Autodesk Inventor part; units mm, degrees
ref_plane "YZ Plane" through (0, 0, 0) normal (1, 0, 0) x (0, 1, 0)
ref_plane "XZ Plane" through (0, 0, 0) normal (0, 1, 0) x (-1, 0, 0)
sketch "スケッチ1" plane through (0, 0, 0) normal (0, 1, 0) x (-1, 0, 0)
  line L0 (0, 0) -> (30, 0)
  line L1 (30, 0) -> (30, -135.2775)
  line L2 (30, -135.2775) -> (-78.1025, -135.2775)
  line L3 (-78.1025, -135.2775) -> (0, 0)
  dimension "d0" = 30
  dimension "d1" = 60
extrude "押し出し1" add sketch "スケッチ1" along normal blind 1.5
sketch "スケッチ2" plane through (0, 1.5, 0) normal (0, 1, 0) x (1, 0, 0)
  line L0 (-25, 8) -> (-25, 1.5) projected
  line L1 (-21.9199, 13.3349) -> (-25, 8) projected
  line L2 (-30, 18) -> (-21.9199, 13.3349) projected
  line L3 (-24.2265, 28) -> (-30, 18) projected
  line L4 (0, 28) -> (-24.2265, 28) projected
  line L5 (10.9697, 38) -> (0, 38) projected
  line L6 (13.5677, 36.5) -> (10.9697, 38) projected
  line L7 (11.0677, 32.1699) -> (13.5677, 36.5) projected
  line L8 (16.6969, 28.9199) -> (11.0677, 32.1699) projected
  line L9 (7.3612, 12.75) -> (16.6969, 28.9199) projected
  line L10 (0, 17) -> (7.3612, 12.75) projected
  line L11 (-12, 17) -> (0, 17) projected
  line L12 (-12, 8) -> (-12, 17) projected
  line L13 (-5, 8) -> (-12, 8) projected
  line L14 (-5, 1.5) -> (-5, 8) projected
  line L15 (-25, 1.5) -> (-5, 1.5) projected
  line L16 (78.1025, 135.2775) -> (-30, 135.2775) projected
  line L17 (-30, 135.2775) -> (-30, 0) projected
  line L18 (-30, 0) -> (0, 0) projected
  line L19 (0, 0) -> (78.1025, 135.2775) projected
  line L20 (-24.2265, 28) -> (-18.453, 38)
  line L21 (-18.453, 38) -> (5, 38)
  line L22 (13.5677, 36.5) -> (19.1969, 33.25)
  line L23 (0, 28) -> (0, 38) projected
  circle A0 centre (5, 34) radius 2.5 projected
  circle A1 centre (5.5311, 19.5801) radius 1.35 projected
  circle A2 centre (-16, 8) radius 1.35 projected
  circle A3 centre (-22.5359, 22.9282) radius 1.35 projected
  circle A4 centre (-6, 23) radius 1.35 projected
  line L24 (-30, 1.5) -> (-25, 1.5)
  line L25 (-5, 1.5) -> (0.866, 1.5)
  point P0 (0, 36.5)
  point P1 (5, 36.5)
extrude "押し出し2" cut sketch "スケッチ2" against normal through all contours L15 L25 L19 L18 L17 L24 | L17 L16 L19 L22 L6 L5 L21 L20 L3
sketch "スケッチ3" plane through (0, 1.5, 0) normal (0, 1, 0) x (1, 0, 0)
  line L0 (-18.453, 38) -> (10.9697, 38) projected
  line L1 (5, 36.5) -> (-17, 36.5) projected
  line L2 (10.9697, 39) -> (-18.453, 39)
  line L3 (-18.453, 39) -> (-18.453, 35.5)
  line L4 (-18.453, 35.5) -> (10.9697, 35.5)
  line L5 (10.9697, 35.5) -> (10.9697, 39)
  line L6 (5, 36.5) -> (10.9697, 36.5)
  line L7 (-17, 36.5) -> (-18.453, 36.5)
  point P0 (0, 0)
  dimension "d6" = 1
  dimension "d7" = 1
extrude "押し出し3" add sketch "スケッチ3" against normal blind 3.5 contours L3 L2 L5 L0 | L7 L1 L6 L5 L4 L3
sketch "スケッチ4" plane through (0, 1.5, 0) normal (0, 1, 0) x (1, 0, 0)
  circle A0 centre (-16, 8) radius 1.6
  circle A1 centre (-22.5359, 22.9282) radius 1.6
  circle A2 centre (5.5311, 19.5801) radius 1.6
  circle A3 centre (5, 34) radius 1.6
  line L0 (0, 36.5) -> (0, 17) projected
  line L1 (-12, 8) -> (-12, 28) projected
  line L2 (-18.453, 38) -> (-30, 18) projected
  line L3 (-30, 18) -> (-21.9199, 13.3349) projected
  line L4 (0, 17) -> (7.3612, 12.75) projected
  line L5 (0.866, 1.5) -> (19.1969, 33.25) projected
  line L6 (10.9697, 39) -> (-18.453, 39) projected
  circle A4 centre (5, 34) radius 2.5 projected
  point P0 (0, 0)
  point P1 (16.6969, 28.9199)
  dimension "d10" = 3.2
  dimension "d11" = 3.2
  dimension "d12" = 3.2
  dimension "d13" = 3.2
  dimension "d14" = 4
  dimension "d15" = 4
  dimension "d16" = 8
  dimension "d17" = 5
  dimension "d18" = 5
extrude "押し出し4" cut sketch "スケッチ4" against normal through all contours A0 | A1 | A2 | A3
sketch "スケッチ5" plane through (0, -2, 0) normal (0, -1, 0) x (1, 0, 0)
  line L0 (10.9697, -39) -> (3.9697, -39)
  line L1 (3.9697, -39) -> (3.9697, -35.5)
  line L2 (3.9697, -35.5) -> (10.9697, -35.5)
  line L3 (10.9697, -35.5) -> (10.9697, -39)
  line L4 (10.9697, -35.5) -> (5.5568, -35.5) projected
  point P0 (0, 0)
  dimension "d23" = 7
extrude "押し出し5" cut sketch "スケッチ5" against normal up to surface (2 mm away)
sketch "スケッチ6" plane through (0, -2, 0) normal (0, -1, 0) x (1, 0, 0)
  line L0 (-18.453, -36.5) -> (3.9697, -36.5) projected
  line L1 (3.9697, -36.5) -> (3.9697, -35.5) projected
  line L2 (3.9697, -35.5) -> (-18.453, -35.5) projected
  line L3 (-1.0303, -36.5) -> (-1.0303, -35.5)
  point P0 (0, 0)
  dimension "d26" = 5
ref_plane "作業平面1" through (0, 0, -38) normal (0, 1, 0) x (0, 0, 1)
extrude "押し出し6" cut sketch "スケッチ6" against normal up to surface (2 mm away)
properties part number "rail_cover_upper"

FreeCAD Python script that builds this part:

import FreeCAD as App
import Part
import Sketcher
Q = App.Units.Quantity


def add_polygon(sketch, points):
    """Adds a closed chain of lines whose ends are joined by coincident constraints."""
    first, n = sketch.GeometryCount, len(points)
    for a, b in zip(points, points[1:] + points[:1]):
        sketch.addGeometry(Part.LineSegment(App.Vector(*a, 0), App.Vector(*b, 0)), False)
    for i in range(n):
        sketch.addConstraint(Sketcher.Constraint("Coincident", first + i, 2, first + (i + 1) % n, 1))

doc = App.newDocument("Part")
body = doc.addObject("PartDesign::Body", "Body")

# Sketch on XZ plane
sketch1 = body.newObject("Sketcher::SketchObject", "Sketch")
sketch1.AttachmentSupport = (doc.getObject("XZ_Plane"), [""])
sketch1.MapMode = "FlatFace"
add_polygon(sketch1, [(-30, 0), (0, 0), (78, -135), (-30, -135)])  # lines 0-3
sketch1.addConstraint([
    Sketcher.Constraint("Horizontal", 0),
    Sketcher.Constraint("Horizontal", 2),
    Sketcher.Constraint("Vertical", 3),
    Sketcher.Constraint("Coincident", 0, 2, -1, 1),
    Sketcher.Constraint("DistanceX", 0, 1, 0, 2, Q("30 mm")),
    Sketcher.Constraint("Angle", 1, Q("-60 deg")),
    Sketcher.Constraint("Distance", 1, Q("156.205 mm")),
])
pad1 = body.newObject("PartDesign::Pad", "Pad")
pad1.Profile = sketch1
pad1.Length = 1.5
pad1.Reversed = True

# Sketch on XZ plane
sketch2 = body.newObject("Sketcher::SketchObject", "Sketch001")
sketch2.AttachmentSupport = (doc.getObject("XZ_Plane"), [""])
sketch2.MapMode = "FlatFace"
sketch2.AttachmentOffset = App.Placement(App.Vector(0, 0, -1.5), App.Rotation())
add_polygon(sketch2, [(0.9, -1.5), (-30, -1.5), (-30, 0), (0, 0)])  # lines 0-3
add_polygon(sketch2, [(-30, -135.3), (-30, -18), (-18.5, -38), (11, -38), (13.6, -36.5), (19.2, -33.3), (78.1, -135.3)])  # lines 4-10
sketch2.addConstraint([
    Sketcher.Constraint("Horizontal", 0),
    Sketcher.Constraint("Vertical", 1),
    Sketcher.Constraint("Horizontal", 2),
    Sketcher.Constraint("Vertical", 4),
    Sketcher.Constraint("Horizontal", 6),
    Sketcher.Constraint("Horizontal", 10),
    Sketcher.Constraint("Coincident", 2, 2, -1, 1),
    Sketcher.Constraint("Parallel", 3, 5),
    Sketcher.Constraint("Perpendicular", 5, 7),
    Sketcher.Constraint("Parallel", 7, 8),
    Sketcher.Constraint("Perpendicular", 8, 9),
    Sketcher.Constraint("Vertical", 1, 2, 4, 2),
    Sketcher.Constraint("DistanceX", 2, 1, 2, 2, Q("30 mm")),
    Sketcher.Constraint("Angle", 3, Q("-60 deg")),
    Sketcher.Constraint("Distance", 7, Q("3 mm")),
    Sketcher.Constraint("DistanceY", 1, 1, 1, 2, Q("1.5 mm")),
    Sketcher.Constraint("DistanceY", 4, 2, -1, 1, Q("18 mm")),
    Sketcher.Constraint("DistanceY", 5, 2, -1, 1, Q("38 mm")),
    Sketcher.Constraint("Distance", 8, Q("6.5 mm")),
    Sketcher.Constraint("DistanceX", 5, 2, 8, 2, Q("37.65 mm")),
    Sketcher.Constraint("DistanceX", 10, 2, 10, 1, Q("108.1025 mm")),
])
pocket1 = body.newObject("PartDesign::Pocket", "Pocket")
pocket1.Profile = sketch2
pocket1.Type = "ThroughAll"
pocket1.Reversed = True

# Sketch on XZ plane
sketch3 = body.newObject("Sketcher::SketchObject", "Sketch002")
sketch3.AttachmentSupport = (doc.getObject("XZ_Plane"), [""])
sketch3.MapMode = "FlatFace"
sketch3.AttachmentOffset = App.Placement(App.Vector(0, 0, -1.5), App.Rotation())
add_polygon(sketch3, [(-18.5, -39), (-18.5, -38), (11, -38), (11, -39)])  # lines 0-3
add_polygon(sketch3, [(11, -36.5), (-18.5, -36.5), (-18.5, -35.5), (11, -35.5)])  # lines 4-7
sketch3.addConstraint([
    Sketcher.Constraint("Vertical", 0),
    Sketcher.Constraint("Horizontal", 1),
    Sketcher.Constraint("Vertical", 2),
    Sketcher.Constraint("Horizontal", 3),
    Sketcher.Constraint("Horizontal", 4),
    Sketcher.Constraint("Vertical", 5),
    Sketcher.Constraint("Horizontal", 6),
    Sketcher.Constraint("Vertical", 7),
    Sketcher.Constraint("Vertical", 3, 2, 4, 2),
    Sketcher.Constraint("Vertical", 2, 2, 6, 2),
    Sketcher.Constraint("Equal", 2, 5),
    Sketcher.Constraint("DistanceY", 0, 1, 0, 2, Q("1 mm")),
    Sketcher.Constraint("DistanceY", 0, 2, -1, 1, Q("38 mm")),
    Sketcher.Constraint("DistanceY", 4, 2, -1, 1, Q("36.5 mm")),
    Sketcher.Constraint("DistanceX", 1, 1, 1, 2, Q("29.4227 mm")),
    Sketcher.Constraint("DistanceX", 0, 2, -1, 1, Q("18.453 mm")),
])
pad2 = body.newObject("PartDesign::Pad", "Pad001")
pad2.Profile = sketch3
pad2.Length = 3.5

# Sketch on XZ plane
sketch4 = body.newObject("Sketcher::SketchObject", "Sketch003")
sketch4.AttachmentSupport = (doc.getObject("XZ_Plane"), [""])
sketch4.MapMode = "FlatFace"
sketch4.AttachmentOffset = App.Placement(App.Vector(0, 0, -1.5), App.Rotation())
sketch4.addGeometry([
    Part.Circle(App.Vector(-16, -8, 0), App.Vector(0, 0, 1), 1.6),
    Part.Circle(App.Vector(-22.5, -22.9, 0), App.Vector(0, 0, 1), 1.6),
    Part.Circle(App.Vector(5.5, -19.6, 0), App.Vector(0, 0, 1), 1.6),
    Part.Circle(App.Vector(5, -34, 0), App.Vector(0, 0, 1), 1.6),
], False)
sketch4.addConstraint([
    Sketcher.Constraint("Equal", 0, 1),
    Sketcher.Constraint("Equal", 1, 2),
    Sketcher.Constraint("Equal", 2, 3),
    Sketcher.Constraint("Diameter", 0, Q("3.2 mm")),
    Sketcher.Constraint("DistanceY", 0, 3, -1, 1, Q("8 mm")),
    Sketcher.Constraint("DistanceX", -1, 1, 3, 3, Q("5 mm")),
    Sketcher.Constraint("DistanceX", 0, 3, -1, 1, Q("16 mm")),
    Sketcher.Constraint("DistanceY", 3, 3, -1, 1, Q("34 mm")),
    Sketcher.Constraint("DistanceY", 2, 3, -1, 1, Q("19.58 mm")),
    Sketcher.Constraint("DistanceX", 1, 3, -1, 1, Q("22.536 mm")),
    Sketcher.Constraint("DistanceX", -1, 1, 2, 3, Q("5.531 mm")),
    Sketcher.Constraint("DistanceY", 1, 3, 2, 3, Q("3.348 mm")),
])
pocket2 = body.newObject("PartDesign::Pocket", "Pocket001")
pocket2.Profile = sketch4
pocket2.Type = "ThroughAll"
pocket2.Reversed = True

# Sketch on XZ plane
sketch5 = body.newObject("Sketcher::SketchObject", "Sketch004")
sketch5.AttachmentSupport = (doc.getObject("XZ_Plane"), [""])
sketch5.MapMode = "FlatFace"
sketch5.AttachmentOffset = App.Placement(App.Vector(0, 0, 2), App.Rotation())
add_polygon(sketch5, [(4, -39), (11, -39), (11, -35.5), (4, -35.5)])  # lines 0-3
sketch5.addConstraint([
    Sketcher.Constraint("Horizontal", 0),
    Sketcher.Constraint("Vertical", 1),
    Sketcher.Constraint("Horizontal", 2),
    Sketcher.Constraint("Vertical", 3),
    Sketcher.Constraint("DistanceX", 0, 1, 0, 2, Q("7 mm")),
    Sketcher.Constraint("DistanceY", 1, 1, 1, 2, Q("3.5 mm")),
    Sketcher.Constraint("DistanceY", 0, 2, -1, 1, Q("39 mm")),
    Sketcher.Constraint("DistanceX", -1, 1, 0, 2, Q("10.9697 mm")),
])
pocket3 = body.newObject("PartDesign::Pocket", "Pocket002")
pocket3.Profile = sketch5
pocket3.Length = 2

# Sketch on XZ plane
sketch6 = body.newObject("Sketcher::SketchObject", "Sketch005")
sketch6.AttachmentSupport = (doc.getObject("XZ_Plane"), [""])
sketch6.MapMode = "FlatFace"
sketch6.AttachmentOffset = App.Placement(App.Vector(0, 0, 2), App.Rotation())
add_polygon(sketch6, [(-1, -35.5), (-1, -36.5), (4, -36.5), (4, -35.5)])  # lines 0-3
sketch6.addConstraint([
    Sketcher.Constraint("Vertical", 0),
    Sketcher.Constraint("Horizontal", 1),
    Sketcher.Constraint("Vertical", 2),
    Sketcher.Constraint("Horizontal", 3),
    Sketcher.Constraint("DistanceX", 1, 1, 1, 2, Q("5 mm")),
    Sketcher.Constraint("DistanceY", 0, 2, 0, 1, Q("1 mm")),
    Sketcher.Constraint("DistanceY", 0, 2, -1, 1, Q("36.5 mm")),
    Sketcher.Constraint("DistanceX", 0, 2, -1, 1, Q("1.0303 mm")),
])
pocket4 = body.newObject("PartDesign::Pocket", "Pocket003")
pocket4.Profile = sketch6
pocket4.Length = 2

doc.recompute()
